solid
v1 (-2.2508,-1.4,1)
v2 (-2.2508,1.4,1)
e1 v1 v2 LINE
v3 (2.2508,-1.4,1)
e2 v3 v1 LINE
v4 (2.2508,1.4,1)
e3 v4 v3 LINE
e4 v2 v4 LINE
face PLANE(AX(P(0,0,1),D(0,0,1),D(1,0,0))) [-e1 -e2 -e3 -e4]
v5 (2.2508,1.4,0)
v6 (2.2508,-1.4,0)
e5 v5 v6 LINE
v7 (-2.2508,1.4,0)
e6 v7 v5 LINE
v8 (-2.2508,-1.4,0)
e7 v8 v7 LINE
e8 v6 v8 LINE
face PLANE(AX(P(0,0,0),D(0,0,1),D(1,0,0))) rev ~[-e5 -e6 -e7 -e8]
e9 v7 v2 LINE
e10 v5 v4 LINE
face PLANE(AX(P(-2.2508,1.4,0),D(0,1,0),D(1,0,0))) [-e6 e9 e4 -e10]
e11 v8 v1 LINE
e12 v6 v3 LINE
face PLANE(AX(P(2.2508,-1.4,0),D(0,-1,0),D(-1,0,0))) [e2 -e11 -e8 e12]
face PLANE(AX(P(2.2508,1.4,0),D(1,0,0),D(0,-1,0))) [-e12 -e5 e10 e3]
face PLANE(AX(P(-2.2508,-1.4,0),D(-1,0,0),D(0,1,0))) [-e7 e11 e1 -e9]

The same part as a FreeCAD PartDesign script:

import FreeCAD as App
import Part
import Sketcher
from FreeCAD import Vector


def add_polygon(sketch, points):
    """Adds a closed chain of lines whose ends are joined by coincident constraints."""
    first, n = sketch.GeometryCount, len(points)
    for a, b in zip(points, points[1:] + points[:1]):
        sketch.addGeometry(Part.LineSegment(App.Vector(*a, 0), App.Vector(*b, 0)), False)
    for i in range(n):
        sketch.addConstraint(Sketcher.Constraint("Coincident", first + i, 2, first + (i + 1) % n, 1))

doc = App.newDocument("Part")
body = doc.addObject("PartDesign::Body", "Body")

# Sketch on XY plane
sketch1 = body.newObject("Sketcher::SketchObject", "Sketch")
sketch1.AttachmentSupport = (doc.getObject("XY_Plane"), [""])
sketch1.MapMode = "FlatFace"
add_polygon(sketch1, [(2.2508, 1.4), (-2.2508, 1.4), (-2.2508, -1.4), (2.2508, -1.4)])  # lines 0-3
sketch1.addConstraint([
    Sketcher.Constraint("Horizontal", 0),
    Sketcher.Constraint("Vertical", 1),
    Sketcher.Constraint("Horizontal", 2),
    Sketcher.Constraint("Vertical", 3),
    Sketcher.Constraint("Symmetric", 0, 2, 2, 2, -1, 1),
    Sketcher.Constraint("DistanceY", 1, 2, 1, 1, 2.8),
    Sketcher.Constraint("DistanceX", 0, 2, 0, 1, 4.5016),
])
pad1 = body.newObject("PartDesign::Pad", "Pad")
pad1.Profile = sketch1
pad1.Length = 1

doc.recompute()
